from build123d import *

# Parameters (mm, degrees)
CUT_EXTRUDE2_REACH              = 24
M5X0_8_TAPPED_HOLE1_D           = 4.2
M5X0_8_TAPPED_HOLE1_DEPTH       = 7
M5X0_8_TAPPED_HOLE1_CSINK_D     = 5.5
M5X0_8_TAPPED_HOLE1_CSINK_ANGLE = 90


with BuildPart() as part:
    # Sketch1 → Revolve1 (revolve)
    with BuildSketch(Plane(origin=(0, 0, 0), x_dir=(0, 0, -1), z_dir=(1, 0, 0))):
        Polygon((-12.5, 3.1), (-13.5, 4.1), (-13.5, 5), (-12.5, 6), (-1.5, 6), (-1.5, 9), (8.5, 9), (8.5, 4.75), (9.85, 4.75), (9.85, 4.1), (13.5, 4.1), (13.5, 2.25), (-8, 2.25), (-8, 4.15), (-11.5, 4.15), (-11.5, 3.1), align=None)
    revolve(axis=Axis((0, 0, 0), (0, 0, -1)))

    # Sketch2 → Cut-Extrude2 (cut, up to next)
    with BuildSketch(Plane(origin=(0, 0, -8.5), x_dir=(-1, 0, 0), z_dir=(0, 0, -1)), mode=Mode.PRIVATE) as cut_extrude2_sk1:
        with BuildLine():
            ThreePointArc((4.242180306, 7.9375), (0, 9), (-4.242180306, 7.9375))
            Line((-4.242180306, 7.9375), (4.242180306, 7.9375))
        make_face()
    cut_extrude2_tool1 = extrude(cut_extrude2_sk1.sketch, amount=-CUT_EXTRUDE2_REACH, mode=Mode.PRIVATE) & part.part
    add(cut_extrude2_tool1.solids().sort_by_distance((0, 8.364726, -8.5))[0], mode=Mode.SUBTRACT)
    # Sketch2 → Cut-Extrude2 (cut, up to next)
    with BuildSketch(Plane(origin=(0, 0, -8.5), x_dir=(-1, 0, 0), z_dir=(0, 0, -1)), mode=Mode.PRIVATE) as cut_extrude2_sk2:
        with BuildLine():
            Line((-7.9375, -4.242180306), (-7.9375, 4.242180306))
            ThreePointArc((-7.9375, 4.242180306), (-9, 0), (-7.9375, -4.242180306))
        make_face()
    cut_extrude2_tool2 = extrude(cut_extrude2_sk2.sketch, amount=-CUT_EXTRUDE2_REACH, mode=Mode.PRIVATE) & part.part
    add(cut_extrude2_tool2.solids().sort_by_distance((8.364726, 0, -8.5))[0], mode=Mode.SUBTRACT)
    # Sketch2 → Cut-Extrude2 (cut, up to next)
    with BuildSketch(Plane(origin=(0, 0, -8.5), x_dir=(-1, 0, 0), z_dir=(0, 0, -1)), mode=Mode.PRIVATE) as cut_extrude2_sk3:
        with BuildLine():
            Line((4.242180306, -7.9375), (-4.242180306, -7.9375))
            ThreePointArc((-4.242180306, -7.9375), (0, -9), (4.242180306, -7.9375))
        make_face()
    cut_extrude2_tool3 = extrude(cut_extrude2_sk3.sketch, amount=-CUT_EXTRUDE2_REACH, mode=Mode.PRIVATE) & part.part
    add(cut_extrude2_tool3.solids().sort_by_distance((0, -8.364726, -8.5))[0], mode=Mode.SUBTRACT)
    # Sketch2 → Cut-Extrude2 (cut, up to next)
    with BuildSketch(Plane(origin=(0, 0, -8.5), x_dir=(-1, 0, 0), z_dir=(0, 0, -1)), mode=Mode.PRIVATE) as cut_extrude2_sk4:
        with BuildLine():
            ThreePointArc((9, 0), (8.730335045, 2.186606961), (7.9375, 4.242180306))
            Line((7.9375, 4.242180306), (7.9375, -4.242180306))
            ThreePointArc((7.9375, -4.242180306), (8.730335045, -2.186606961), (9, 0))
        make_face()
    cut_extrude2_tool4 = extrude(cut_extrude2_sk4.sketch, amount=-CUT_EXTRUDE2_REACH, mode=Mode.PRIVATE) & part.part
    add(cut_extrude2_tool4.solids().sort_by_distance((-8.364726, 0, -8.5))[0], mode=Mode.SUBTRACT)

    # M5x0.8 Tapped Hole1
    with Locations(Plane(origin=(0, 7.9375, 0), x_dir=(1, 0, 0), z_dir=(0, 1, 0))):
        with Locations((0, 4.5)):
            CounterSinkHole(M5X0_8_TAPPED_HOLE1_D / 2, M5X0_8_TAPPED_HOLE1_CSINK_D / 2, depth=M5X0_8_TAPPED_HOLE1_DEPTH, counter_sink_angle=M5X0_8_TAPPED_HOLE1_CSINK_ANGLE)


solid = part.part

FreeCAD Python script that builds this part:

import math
import FreeCAD as App
import Part
import Sketcher
Q = App.Units.Quantity

doc = App.newDocument("Part")
body = doc.addObject("PartDesign::Body", "Body")

# Sketch on YZ plane
sketch1 = body.newObject("Sketcher::SketchObject", "Sketch")
sketch1.AttachmentSupport = (doc.getObject("YZ_Plane"), [""])
sketch1.MapMode = "FlatFace"
sketch1.addGeometry(Part.LineSegment(App.Vector(4.1, 13.5, 0), App.Vector(3.1, 12.5, 0)), False)
sketch1.addGeometry(Part.LineSegment(App.Vector(3.1, 12.5, 0), App.Vector(3.1, 11.5, 0)), False)
sketch1.addGeometry(Part.LineSegment(App.Vector(3.1, 11.5, 0), App.Vector(4.15, 11.5, 0)), False)
sketch1.addGeometry(Part.LineSegment(App.Vector(4.15, 11.5, 0), App.Vector(4.15, 8, 0)), False)
sketch1.addGeometry(Part.LineSegment(App.Vector(4.15, 8, 0), App.Vector(2.25, 8, 0)), False)
sketch1.addGeometry(Part.LineSegment(App.Vector(2.25, 8, 0), App.Vector(2.25, -13.5, 0)), False)
sketch1.addGeometry(Part.LineSegment(App.Vector(2.25, -13.5, 0), App.Vector(4.1, -13.5, 0)), False)
sketch1.addGeometry(Part.LineSegment(App.Vector(4.1, -13.5, 0), App.Vector(4.1, -9.85, 0)), False)
sketch1.addGeometry(Part.LineSegment(App.Vector(4.1, -9.85, 0), App.Vector(4.75, -9.85, 0)), False)
sketch1.addGeometry(Part.LineSegment(App.Vector(4.75, -9.85, 0), App.Vector(4.75, -8.5, 0)), False)
sketch1.addGeometry(Part.LineSegment(App.Vector(4.75, -8.5, 0), App.Vector(9, -8.5, 0)), False)
sketch1.addGeometry(Part.LineSegment(App.Vector(9, -8.5, 0), App.Vector(9, 1.5, 0)), False)
sketch1.addGeometry(Part.LineSegment(App.Vector(9, 1.5, 0), App.Vector(6, 1.5, 0)), False)
sketch1.addGeometry(Part.LineSegment(App.Vector(6, 1.5, 0), App.Vector(6, 12.5, 0)), False)
sketch1.addGeometry(Part.LineSegment(App.Vector(6, 12.5, 0), App.Vector(5, 13.5, 0)), False)
sketch1.addGeometry(Part.LineSegment(App.Vector(5, 13.5, 0), App.Vector(4.1, 13.5, 0)), False)
sketch1.addConstraint(Sketcher.Constraint("Coincident", 0, 2, 1, 1))
sketch1.addConstraint(Sketcher.Constraint("Coincident", 1, 2, 2, 1))
sketch1.addConstraint(Sketcher.Constraint("Coincident", 2, 2, 3, 1))
sketch1.addConstraint(Sketcher.Constraint("Coincident", 3, 2, 4, 1))
sketch1.addConstraint(Sketcher.Constraint("Coincident", 4, 2, 5, 1))
sketch1.addConstraint(Sketcher.Constraint("Coincident", 5, 2, 6, 1))
sketch1.addConstraint(Sketcher.Constraint("Coincident", 6, 2, 7, 1))
sketch1.addConstraint(Sketcher.Constraint("Coincident", 7, 2, 8, 1))
sketch1.addConstraint(Sketcher.Constraint("Coincident", 8, 2, 9, 1))
sketch1.addConstraint(Sketcher.Constraint("Coincident", 9, 2, 10, 1))
sketch1.addConstraint(Sketcher.Constraint("Coincident", 10, 2, 11, 1))
sketch1.addConstraint(Sketcher.Constraint("Coincident", 11, 2, 12, 1))
sketch1.addConstraint(Sketcher.Constraint("Coincident", 12, 2, 13, 1))
sketch1.addConstraint(Sketcher.Constraint("Coincident", 13, 2, 14, 1))
sketch1.addConstraint(Sketcher.Constraint("Coincident", 14, 2, 15, 1))
sketch1.addConstraint(Sketcher.Constraint("Coincident", 15, 2, 0, 1))
sketch1.addConstraint(Sketcher.Constraint("Vertical", 1))
sketch1.addConstraint(Sketcher.Constraint("Horizontal", 2))
sketch1.addConstraint(Sketcher.Constraint("Vertical", 3))
sketch1.addConstraint(Sketcher.Constraint("Horizontal", 4))
sketch1.addConstraint(Sketcher.Constraint("Vertical", 5))
sketch1.addConstraint(Sketcher.Constraint("Horizontal", 6))
sketch1.addConstraint(Sketcher.Constraint("Vertical", 7))
sketch1.addConstraint(Sketcher.Constraint("Horizontal", 8))
sketch1.addConstraint(Sketcher.Constraint("Vertical", 9))
sketch1.addConstraint(Sketcher.Constraint("Horizontal", 10))
sketch1.addConstraint(Sketcher.Constraint("Vertical", 11))
sketch1.addConstraint(Sketcher.Constraint("Horizontal", 12))
sketch1.addConstraint(Sketcher.Constraint("Vertical", 13))
sketch1.addConstraint(Sketcher.Constraint("Horizontal", 15))
sketch1.addConstraint(Sketcher.Constraint("Symmetric", 6, 2, 15, 2, -1))
sketch1.addConstraint(Sketcher.Constraint("Perpendicular", 0, 14))
sketch1.addConstraint(Sketcher.Constraint("Horizontal", 0, 2, 13, 2))
sketch1.addConstraint(Sketcher.Constraint("Equal", 0, 14))
sketch1.addConstraint(Sketcher.Constraint("DistanceX", 12, 2, 12, 1, Q("3 mm")))
sketch1.addConstraint(Sketcher.Constraint("DistanceY", 1, 2, 1, 1, Q("1 mm")))
sketch1.addConstraint(Sketcher.Constraint("DistanceY", 11, 1, 11, 2, Q("10 mm")))
sketch1.addConstraint(Sketcher.Constraint("DistanceY", 13, 1, 13, 2, Q("11 mm")))
sketch1.addConstraint(Sketcher.Constraint("DistanceX", 4, 2, 4, 1, Q("1.9 mm")))
sketch1.addConstraint(Sketcher.Constraint("DistanceX", 15, 2, 15, 1, Q("0.9 mm")))
sketch1.addConstraint(Sketcher.Constraint("DistanceY", 3, 2, 3, 1, Q("3.5 mm")))
sketch1.addConstraint(Sketcher.Constraint("DistanceY", 5, 2, 5, 1, Q("21.5 mm")))
sketch1.addConstraint(Sketcher.Constraint("DistanceY", -1, 1, 3, 2, Q("8 mm")))
sketch1.addConstraint(Sketcher.Constraint("DistanceX", -1, 1, 10, 2, Q("9 mm")))
sketch1.addConstraint(Sketcher.Constraint("DistanceX", 2, 1, 2, 2, Q("1.05 mm")))
sketch1.addConstraint(Sketcher.Constraint("DistanceX", 8, 1, 8, 2, Q("0.65 mm")))
sketch1.addConstraint(Sketcher.Constraint("DistanceY", 7, 1, 7, 2, Q("3.65 mm")))
revolution = body.newObject("PartDesign::Revolution", "Revolution")
revolution.Profile = sketch1
revolution.ReferenceAxis = (sketch1, ["V_Axis"])
revolution.Angle = 360

# Sketch on XY plane
sketch2 = body.newObject("Sketcher::SketchObject", "Sketch001")
sketch2.AttachmentSupport = (doc.getObject("XY_Plane"), [""])
sketch2.MapMode = "FlatFace"
sketch2.AttachmentOffset = App.Placement(App.Vector(0, 0, -8.5), App.Rotation())
sketch2.addGeometry(Part.ArcOfCircle(Part.Circle(App.Vector(0, 0, 0), App.Vector(0, 0, 1), 9), math.radians(61.877818), math.radians(118.122182)), False)
sketch2.addGeometry(Part.LineSegment(App.Vector(4.24218, 7.9375, 0), App.Vector(-4.24218, 7.9375, 0)), False)
sketch2.addConstraint(Sketcher.Constraint("Coincident", 0, 1, 1, 1))
sketch2.addConstraint(Sketcher.Constraint("Coincident", 1, 2, 0, 2))
sketch2.addConstraint(Sketcher.Constraint("Horizontal", 1))
sketch2.addConstraint(Sketcher.Constraint("Coincident", 0, 3, -1, 1))
sketch2.addConstraint(Sketcher.Constraint("Radius", 0, Q("9 mm")))
sketch2.addConstraint(Sketcher.Constraint("DistanceX", 1, 2, 1, 1, Q("8.484361 mm")))
pocket1 = body.newObject("PartDesign::Pocket", "Pocket")
pocket1.Profile = sketch2
pocket1.Type = "UpToFirst"
pocket1.Reversed = True

# Sketch on XY plane
sketch3 = body.newObject("Sketcher::SketchObject", "Sketch002")
sketch3.AttachmentSupport = (doc.getObject("XY_Plane"), [""])
sketch3.MapMode = "FlatFace"
sketch3.AttachmentOffset = App.Placement(App.Vector(0, 0, -8.5), App.Rotation())
sketch3.addGeometry(Part.LineSegment(App.Vector(7.9375, -4.24218, 0), App.Vector(7.9375, 4.24218, 0)), False)
sketch3.addGeometry(Part.ArcOfCircle(Part.Circle(App.Vector(0, 0, 0), App.Vector(0, 0, 1), 9), math.radians(-28.122182), math.radians(28.122182)), False)
sketch3.addConstraint(Sketcher.Constraint("Coincident", 0, 1, 1, 1))
sketch3.addConstraint(Sketcher.Constraint("Coincident", 1, 2, 0, 2))
sketch3.addConstraint(Sketcher.Constraint("Vertical", 0))
sketch3.addConstraint(Sketcher.Constraint("Coincident", 1, 3, -1, 1))
sketch3.addConstraint(Sketcher.Constraint("Radius", 1, Q("9 mm")))
sketch3.addConstraint(Sketcher.Constraint("DistanceY", 0, 1, 0, 2, Q("8.484361 mm")))
pocket2 = body.newObject("PartDesign::Pocket", "Pocket001")
pocket2.Profile = sketch3
pocket2.Type = "UpToFirst"
pocket2.Reversed = True

# Sketch on XY plane
sketch4 = body.newObject("Sketcher::SketchObject", "Sketch003")
sketch4.AttachmentSupport = (doc.getObject("XY_Plane"), [""])
sketch4.MapMode = "FlatFace"
sketch4.AttachmentOffset = App.Placement(App.Vector(0, 0, -8.5), App.Rotation())
sketch4.addGeometry(Part.LineSegment(App.Vector(-4.24218, -7.9375, 0), App.Vector(4.24218, -7.9375, 0)), False)
sketch4.addGeometry(Part.ArcOfCircle(Part.Circle(App.Vector(0, 0, 0), App.Vector(0, 0, 1), 9), math.radians(-118.122182), math.radians(-61.877818)), False)
sketch4.addConstraint(Sketcher.Constraint("Coincident", 0, 1, 1, 1))
sketch4.addConstraint(Sketcher.Constraint("Coincident", 1, 2, 0, 2))
sketch4.addConstraint(Sketcher.Constraint("Horizontal", 0))
sketch4.addConstraint(Sketcher.Constraint("Coincident", 1, 3, -1, 1))
sketch4.addConstraint(Sketcher.Constraint("Radius", 1, Q("9 mm")))
sketch4.addConstraint(Sketcher.Constraint("DistanceX", 0, 1, 0, 2, Q("8.484361 mm")))
pocket3 = body.newObject("PartDesign::Pocket", "Pocket002")
pocket3.Profile = sketch4
pocket3.Type = "UpToFirst"
pocket3.Reversed = True

# Sketch on XY plane
sketch5 = body.newObject("Sketcher::SketchObject", "Sketch004")
sketch5.AttachmentSupport = (doc.getObject("XY_Plane"), [""])
sketch5.MapMode = "FlatFace"
sketch5.AttachmentOffset = App.Placement(App.Vector(0, 0, -8.5), App.Rotation())
sketch5.addGeometry(Part.ArcOfCircle(Part.Circle(App.Vector(0, 0, 0), App.Vector(0, 0, 1), 9), math.radians(151.877818), math.radians(180)), False)
sketch5.addGeometry(Part.LineSegment(App.Vector(-7.9375, 4.24218, 0), App.Vector(-7.9375, -4.24218, 0)), False)
sketch5.addGeometry(Part.ArcOfCircle(Part.Circle(App.Vector(0, 0, 0), App.Vector(0, 0, 1), 9), math.radians(180), math.radians(208.122182)), False)
sketch5.addConstraint(Sketcher.Constraint("Coincident", 0, 1, 1, 1))
sketch5.addConstraint(Sketcher.Constraint("Coincident", 1, 2, 2, 2))
sketch5.addConstraint(Sketcher.Constraint("Tangent", 2, 1, 0, 2))
sketch5.addConstraint(Sketcher.Constraint("Vertical", 1))
sketch5.addConstraint(Sketcher.Constraint("Coincident", 0, 3, -1, 1))
sketch5.addConstraint(Sketcher.Constraint("Equal", 0, 2))
sketch5.addConstraint(Sketcher.Constraint("PointOnObject", 2, 1, -1))
sketch5.addConstraint(Sketcher.Constraint("Radius", 0, Q("9 mm")))
sketch5.addConstraint(Sketcher.Constraint("DistanceY", 1, 2, 1, 1, Q("8.484361 mm")))
pocket4 = body.newObject("PartDesign::Pocket", "Pocket003")
pocket4.Profile = sketch5
pocket4.Type = "UpToFirst"
pocket4.Reversed = True

# Sketch on XZ plane
sketch6 = body.newObject("Sketcher::SketchObject", "Sketch005")
sketch6.AttachmentSupport = (doc.getObject("XZ_Plane"), [""])
sketch6.MapMode = "FlatFace"
sketch6.AttachmentOffset = App.Placement(App.Vector(0, 0, -7.9375), App.Rotation())
sketch6.addGeometry(Part.Circle(App.Vector(0, -4.5, 0), App.Vector(0, 0, 1), 2.1), False)
sketch6.addConstraint(Sketcher.Constraint("PointOnObject", 0, 3, -2))
sketch6.addConstraint(Sketcher.Constraint("Diameter", 0, Q("4.2 mm")))
sketch6.addConstraint(Sketcher.Constraint("DistanceY", 0, 3, -1, 1, Q("4.5 mm")))
doc.recompute()
hole = body.newObject("PartDesign::Hole", "Hole")
hole.Profile = sketch6
hole.ThreadType = "None"
hole.Diameter = 4.2
hole.DepthType = "Dimension"
hole.Depth = 7
hole.DrillPoint = "Flat"
hole.HoleCutType = "Countersink"
hole.HoleCutDiameter = 5.5
hole.HoleCutCountersinkAngle = 90
hole.Reversed = True

doc.recompute()
